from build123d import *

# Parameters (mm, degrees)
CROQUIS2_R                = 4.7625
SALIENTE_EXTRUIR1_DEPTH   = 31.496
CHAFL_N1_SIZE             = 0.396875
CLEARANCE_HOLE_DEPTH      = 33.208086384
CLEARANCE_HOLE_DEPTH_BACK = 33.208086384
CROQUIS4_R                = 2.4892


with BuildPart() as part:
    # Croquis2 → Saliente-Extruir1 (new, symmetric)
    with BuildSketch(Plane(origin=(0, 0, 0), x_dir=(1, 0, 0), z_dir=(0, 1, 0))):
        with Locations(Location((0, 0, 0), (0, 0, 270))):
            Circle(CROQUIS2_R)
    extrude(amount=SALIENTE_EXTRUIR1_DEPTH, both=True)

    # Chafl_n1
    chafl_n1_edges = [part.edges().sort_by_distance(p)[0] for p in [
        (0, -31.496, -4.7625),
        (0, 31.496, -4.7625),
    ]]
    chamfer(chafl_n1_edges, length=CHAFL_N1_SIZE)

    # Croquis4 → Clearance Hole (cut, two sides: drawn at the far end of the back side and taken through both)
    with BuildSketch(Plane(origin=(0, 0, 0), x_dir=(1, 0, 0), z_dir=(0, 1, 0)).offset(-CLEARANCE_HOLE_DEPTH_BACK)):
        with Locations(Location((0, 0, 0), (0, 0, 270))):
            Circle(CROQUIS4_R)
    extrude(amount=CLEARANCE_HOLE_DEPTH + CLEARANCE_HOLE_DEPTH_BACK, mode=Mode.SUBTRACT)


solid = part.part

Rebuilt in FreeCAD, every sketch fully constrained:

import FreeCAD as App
import Part
import Sketcher
from FreeCAD import Vector
Q = App.Units.Quantity


def edges_at(feature, points):
    """Names of the edges that pass closest to the given points."""
    edges = feature.Shape.Edges
    near = lambda p: min(range(len(edges)), key=lambda i: edges[i].distToShape(Part.Vertex(*p))[0])
    return sorted({f"Edge{near(p) + 1}" for p in points})

doc = App.newDocument("Part")
params = doc.addObject("Spreadsheet::Sheet", "Params")
for row, (alias, value) in enumerate([
    ("sketch1_diameter", "0.375 in"),
    ("pad1_length", "2.48 in"),
    ("chamfer_size", "0.015625 in"),
    ("sketch2_diameter", "0.196 in"),
], start=1):
    params.set(f"A{row}", alias)
    params.set(f"B{row}", "=" + value)
    params.setAlias(f"B{row}", alias)

body = doc.addObject("PartDesign::Body", "Body")

# Sketch on XZ plane
sketch1 = body.newObject("Sketcher::SketchObject", "Sketch")
sketch1.AttachmentSupport = (doc.getObject("XZ_Plane"), [""])
sketch1.MapMode = "FlatFace"
sketch1.addGeometry(Part.Circle(Vector(0, 0, 0), Vector(0, 0, 1), 4.8), False)
sketch1.addConstraint(Sketcher.Constraint("Coincident", 0, 3, -1, 1))
sketch1.addConstraint(Sketcher.Constraint("Diameter", 0, Q("0.375 in")))
sketch1.setExpression("Constraints[1]", "Params.sketch1_diameter")
pad1 = body.newObject("PartDesign::Pad", "Pad")
pad1.Profile = sketch1
pad1.setExpression("Length", "Params.pad1_length")
pad1.Midplane = True
doc.recompute()

chamfer = body.newObject("PartDesign::Chamfer", "Chamfer")
chamfer.Base = (pad1, edges_at(pad1, [(0, -31.496, -4.763), (0, 31.496, -4.763)]))
chamfer.setExpression("Size", "Params.chamfer_size")

# Sketch on XZ plane
sketch2 = body.newObject("Sketcher::SketchObject", "Sketch001")
sketch2.AttachmentSupport = (doc.getObject("XZ_Plane"), [""])
sketch2.MapMode = "FlatFace"
sketch2.addGeometry(Part.Circle(Vector(0, 0, 0), Vector(0, 0, 1), 2.5), False)
sketch2.addConstraint(Sketcher.Constraint("Coincident", 0, 3, -1, 1))
sketch2.addConstraint(Sketcher.Constraint("Diameter", 0, Q("0.196 in")))
sketch2.setExpression("Constraints[1]", "Params.sketch2_diameter")
pocket1 = body.newObject("PartDesign::Pocket", "Pocket")
pocket1.Profile = sketch2
pocket1.Type = "ThroughAll"
pocket1.Midplane = True

doc.recompute()
